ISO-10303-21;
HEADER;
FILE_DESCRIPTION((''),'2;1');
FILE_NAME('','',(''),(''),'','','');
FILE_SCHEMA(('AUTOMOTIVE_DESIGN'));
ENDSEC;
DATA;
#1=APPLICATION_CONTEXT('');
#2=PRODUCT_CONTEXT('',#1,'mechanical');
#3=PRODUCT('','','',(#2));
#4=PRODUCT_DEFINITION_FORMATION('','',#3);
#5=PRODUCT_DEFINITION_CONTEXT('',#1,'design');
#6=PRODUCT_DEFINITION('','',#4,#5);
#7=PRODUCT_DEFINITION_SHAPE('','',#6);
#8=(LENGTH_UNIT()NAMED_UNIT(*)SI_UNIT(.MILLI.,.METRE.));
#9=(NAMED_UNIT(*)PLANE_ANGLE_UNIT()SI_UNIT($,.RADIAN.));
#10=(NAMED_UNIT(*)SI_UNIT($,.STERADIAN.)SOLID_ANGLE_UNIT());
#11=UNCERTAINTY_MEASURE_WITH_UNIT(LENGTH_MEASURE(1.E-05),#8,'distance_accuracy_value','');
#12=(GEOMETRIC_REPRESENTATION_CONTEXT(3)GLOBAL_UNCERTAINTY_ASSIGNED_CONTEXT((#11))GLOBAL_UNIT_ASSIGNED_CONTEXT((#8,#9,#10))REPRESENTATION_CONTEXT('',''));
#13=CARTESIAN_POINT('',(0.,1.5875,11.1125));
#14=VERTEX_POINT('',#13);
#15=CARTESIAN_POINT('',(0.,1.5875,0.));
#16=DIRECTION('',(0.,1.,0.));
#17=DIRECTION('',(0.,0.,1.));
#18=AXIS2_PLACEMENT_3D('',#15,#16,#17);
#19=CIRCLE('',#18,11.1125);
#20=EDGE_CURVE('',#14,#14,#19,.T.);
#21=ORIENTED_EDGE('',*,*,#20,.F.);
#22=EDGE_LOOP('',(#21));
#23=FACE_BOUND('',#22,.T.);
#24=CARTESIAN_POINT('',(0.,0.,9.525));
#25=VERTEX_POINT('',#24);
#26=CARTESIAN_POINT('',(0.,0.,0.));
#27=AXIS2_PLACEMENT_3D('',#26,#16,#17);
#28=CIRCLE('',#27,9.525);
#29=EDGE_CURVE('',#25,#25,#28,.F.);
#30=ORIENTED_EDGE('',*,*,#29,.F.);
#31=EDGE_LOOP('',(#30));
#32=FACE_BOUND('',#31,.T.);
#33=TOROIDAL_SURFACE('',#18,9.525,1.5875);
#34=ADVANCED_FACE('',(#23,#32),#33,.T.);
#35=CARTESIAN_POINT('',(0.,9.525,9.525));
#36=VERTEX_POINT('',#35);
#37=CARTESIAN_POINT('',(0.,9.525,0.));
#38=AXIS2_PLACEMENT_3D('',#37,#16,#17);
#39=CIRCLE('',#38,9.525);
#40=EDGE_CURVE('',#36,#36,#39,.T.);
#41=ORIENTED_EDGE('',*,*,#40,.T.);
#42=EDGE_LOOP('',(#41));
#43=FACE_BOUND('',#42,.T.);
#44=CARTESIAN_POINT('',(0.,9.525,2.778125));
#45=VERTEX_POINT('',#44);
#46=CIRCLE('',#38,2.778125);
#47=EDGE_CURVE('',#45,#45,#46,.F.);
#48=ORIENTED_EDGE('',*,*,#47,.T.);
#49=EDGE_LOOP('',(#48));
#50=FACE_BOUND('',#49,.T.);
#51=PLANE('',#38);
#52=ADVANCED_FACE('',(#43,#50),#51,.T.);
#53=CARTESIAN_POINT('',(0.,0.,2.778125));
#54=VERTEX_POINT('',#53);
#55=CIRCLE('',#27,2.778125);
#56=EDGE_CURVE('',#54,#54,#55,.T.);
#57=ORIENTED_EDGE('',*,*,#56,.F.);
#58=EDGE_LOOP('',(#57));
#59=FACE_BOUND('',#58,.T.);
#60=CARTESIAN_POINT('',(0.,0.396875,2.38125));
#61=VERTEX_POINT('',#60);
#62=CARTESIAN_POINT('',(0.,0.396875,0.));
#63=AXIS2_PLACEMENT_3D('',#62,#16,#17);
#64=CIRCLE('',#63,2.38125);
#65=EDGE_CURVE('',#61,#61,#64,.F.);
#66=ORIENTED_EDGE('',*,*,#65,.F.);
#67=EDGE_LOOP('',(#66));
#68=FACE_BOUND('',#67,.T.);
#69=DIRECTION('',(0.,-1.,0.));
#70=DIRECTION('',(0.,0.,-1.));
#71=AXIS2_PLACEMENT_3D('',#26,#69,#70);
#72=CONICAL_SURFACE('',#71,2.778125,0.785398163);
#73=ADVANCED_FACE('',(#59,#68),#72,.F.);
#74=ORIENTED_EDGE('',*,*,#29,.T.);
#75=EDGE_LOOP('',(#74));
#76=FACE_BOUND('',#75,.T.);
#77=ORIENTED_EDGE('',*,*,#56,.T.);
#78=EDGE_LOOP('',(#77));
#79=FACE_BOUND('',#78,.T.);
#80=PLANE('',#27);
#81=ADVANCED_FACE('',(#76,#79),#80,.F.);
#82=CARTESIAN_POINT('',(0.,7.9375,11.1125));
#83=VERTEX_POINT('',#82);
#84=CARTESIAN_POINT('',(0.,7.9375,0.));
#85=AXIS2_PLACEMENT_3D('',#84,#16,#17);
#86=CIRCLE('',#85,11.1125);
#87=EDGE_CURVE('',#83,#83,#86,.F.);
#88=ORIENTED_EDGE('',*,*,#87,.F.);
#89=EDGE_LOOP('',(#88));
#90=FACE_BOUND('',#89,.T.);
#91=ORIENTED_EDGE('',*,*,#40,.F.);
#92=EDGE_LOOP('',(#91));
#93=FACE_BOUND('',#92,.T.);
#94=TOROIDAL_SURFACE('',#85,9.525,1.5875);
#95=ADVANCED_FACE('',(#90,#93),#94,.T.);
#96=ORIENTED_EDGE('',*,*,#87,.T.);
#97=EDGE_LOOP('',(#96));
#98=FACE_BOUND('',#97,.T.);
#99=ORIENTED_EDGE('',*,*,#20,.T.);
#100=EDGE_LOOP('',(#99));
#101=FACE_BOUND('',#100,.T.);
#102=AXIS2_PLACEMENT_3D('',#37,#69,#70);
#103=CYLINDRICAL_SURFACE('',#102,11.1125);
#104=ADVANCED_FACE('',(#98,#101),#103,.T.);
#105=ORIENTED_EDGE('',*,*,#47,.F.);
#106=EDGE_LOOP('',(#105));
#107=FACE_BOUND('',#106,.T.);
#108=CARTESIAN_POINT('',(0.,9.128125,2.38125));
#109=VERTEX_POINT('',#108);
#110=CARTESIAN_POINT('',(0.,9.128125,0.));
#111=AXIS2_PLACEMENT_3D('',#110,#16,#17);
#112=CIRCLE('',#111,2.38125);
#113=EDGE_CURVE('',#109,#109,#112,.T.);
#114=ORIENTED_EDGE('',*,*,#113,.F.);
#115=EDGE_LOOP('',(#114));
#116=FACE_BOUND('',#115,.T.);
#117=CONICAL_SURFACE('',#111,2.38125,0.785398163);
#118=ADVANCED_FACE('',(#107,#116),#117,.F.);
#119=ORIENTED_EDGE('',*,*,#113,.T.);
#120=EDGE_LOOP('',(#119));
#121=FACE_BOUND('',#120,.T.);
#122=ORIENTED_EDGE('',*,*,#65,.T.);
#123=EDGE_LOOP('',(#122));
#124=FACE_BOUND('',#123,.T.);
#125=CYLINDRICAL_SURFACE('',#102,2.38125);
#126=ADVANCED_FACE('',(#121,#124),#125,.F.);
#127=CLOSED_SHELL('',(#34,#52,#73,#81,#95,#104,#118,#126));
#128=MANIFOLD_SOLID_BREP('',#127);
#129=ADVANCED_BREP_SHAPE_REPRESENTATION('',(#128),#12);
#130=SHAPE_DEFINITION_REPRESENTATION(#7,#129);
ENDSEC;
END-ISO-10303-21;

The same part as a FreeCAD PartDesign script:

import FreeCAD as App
import Part
import Sketcher

V = App.Vector
Q = App.Units.Quantity


def edges_at(feature, points):
    """Names of the edges that pass closest to the given points."""
    edges = feature.Shape.Edges
    near = lambda p: min(range(len(edges)), key=lambda i: edges[i].distToShape(Part.Vertex(*p))[0])
    return sorted({f"Edge{near(p) + 1}" for p in points})

doc = App.newDocument("Part")
body = doc.addObject("PartDesign::Body", "Body")

# Sketch on XZ plane
sketch1 = body.newObject("Sketcher::SketchObject", "Sketch")
sketch1.AttachmentSupport = (doc.getObject("XZ_Plane"), [""])
sketch1.MapMode = "FlatFace"
sketch1.addGeometry([
    Part.Circle(V(0, 0, 0), V(0, 0, 1), 11.1125),
    Part.Circle(V(0, 0, 0), V(0, 0, 1), 2.38125),
], False)
sketch1.addConstraint([
    Sketcher.Constraint("Coincident", 0, 3, -1, 1),
    Sketcher.Constraint("Coincident", 1, 3, -1, 1),
    Sketcher.Constraint("Diameter", 0, Q("0.875 in")),
    Sketcher.Constraint("Diameter", 1, Q("0.1875 in")),
])
pad1 = body.newObject("PartDesign::Pad", "Pad")
pad1.Profile = sketch1
pad1.Length = Q("0.375 in")
pad1.Reversed = True
doc.recompute()

fillet = body.newObject("PartDesign::Fillet", "Fillet")
fillet.Base = (pad1, edges_at(pad1, [(-11.113, 0, 0), (-11.113, 9.525, 0)]))
fillet.Radius = Q("0.0625 in")
doc.recompute()

chamfer = body.newObject("PartDesign::Chamfer", "Chamfer")
chamfer.Base = (fillet, edges_at(fillet, [(-2.381, 0, 0), (-2.381, 9.525, 0)]))
chamfer.Size = Q("0.015625 in")

doc.recompute()
